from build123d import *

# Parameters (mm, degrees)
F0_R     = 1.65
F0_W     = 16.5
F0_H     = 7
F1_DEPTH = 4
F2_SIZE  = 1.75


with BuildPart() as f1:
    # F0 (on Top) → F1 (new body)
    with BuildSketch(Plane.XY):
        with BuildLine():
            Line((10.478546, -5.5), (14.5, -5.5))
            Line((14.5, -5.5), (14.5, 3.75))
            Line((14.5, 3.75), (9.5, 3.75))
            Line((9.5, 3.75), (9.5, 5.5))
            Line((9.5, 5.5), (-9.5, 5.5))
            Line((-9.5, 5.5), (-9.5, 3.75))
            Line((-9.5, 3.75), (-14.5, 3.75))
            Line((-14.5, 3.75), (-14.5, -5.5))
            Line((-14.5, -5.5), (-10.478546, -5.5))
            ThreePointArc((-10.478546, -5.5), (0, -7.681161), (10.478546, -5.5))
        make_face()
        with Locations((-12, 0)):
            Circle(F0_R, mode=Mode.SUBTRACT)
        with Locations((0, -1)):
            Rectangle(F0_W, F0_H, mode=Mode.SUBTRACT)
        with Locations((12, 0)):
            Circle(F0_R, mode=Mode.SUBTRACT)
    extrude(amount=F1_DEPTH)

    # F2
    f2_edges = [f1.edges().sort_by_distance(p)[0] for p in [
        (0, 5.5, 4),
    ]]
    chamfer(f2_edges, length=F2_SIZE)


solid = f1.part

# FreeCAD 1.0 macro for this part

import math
import FreeCAD as App
import Part
import Sketcher
from FreeCAD import Vector
Q = App.Units.Quantity


def edges_at(feature, points):
    """Names of the edges that pass closest to the given points."""
    edges = feature.Shape.Edges
    near = lambda p: min(range(len(edges)), key=lambda i: edges[i].distToShape(Part.Vertex(*p))[0])
    return sorted({f"Edge{near(p) + 1}" for p in points})

doc = App.newDocument("Part")
body = doc.addObject("PartDesign::Body", "Body")

# Sketch on XY plane
sketch1 = body.newObject("Sketcher::SketchObject", "Sketch")
sketch1.AttachmentSupport = (doc.getObject("XY_Plane"), [""])
sketch1.MapMode = "FlatFace"
sketch1.addGeometry([
    Part.LineSegment(Vector(10.5, -5.5, 0), Vector(14.5, -5.5, 0)),  # 0
    Part.LineSegment(Vector(14.5, -5.5, 0), Vector(14.5, 3.8, 0)),  # 1
    Part.LineSegment(Vector(14.5, 3.8, 0), Vector(9.5, 3.8, 0)),  # 2
    Part.LineSegment(Vector(9.5, 3.8, 0), Vector(9.5, 5.5, 0)),  # 3
    Part.LineSegment(Vector(9.5, 5.5, 0), Vector(-9.5, 5.5, 0)),  # 4
    Part.LineSegment(Vector(-9.5, 5.5, 0), Vector(-9.5, 3.8, 0)),  # 5
    Part.LineSegment(Vector(-9.5, 3.8, 0), Vector(-14.5, 3.8, 0)),  # 6
    Part.LineSegment(Vector(-14.5, 3.8, 0), Vector(-14.5, -5.5, 0)),  # 7
    Part.LineSegment(Vector(-14.5, -5.5, 0), Vector(-10.5, -5.5, 0)),  # 8
    Part.ArcOfCircle(Part.Circle(Vector(0, 18.6, 0), Vector(0, 0, 1), 26.3), math.radians(-114), math.radians(-66)),  # 9
    Part.Circle(Vector(-12, 0, 0), Vector(0, 0, 1), 1.6),  # 10
    Part.LineSegment(Vector(8.2, -4.5, 0), Vector(-8.2, -4.5, 0)),  # 11
    Part.LineSegment(Vector(-8.2, -4.5, 0), Vector(-8.2, 2.5, 0)),  # 12
    Part.LineSegment(Vector(-8.2, 2.5, 0), Vector(8.2, 2.5, 0)),  # 13
    Part.LineSegment(Vector(8.2, 2.5, 0), Vector(8.2, -4.5, 0)),  # 14
    Part.Circle(Vector(12, 0, 0), Vector(0, 0, 1), 1.6),  # 15
], False)
sketch1.addConstraint([
    Sketcher.Constraint("Coincident", 0, 2, 1, 1),
    Sketcher.Constraint("Coincident", 1, 2, 2, 1),
    Sketcher.Constraint("Coincident", 2, 2, 3, 1),
    Sketcher.Constraint("Coincident", 3, 2, 4, 1),
    Sketcher.Constraint("Coincident", 4, 2, 5, 1),
    Sketcher.Constraint("Coincident", 5, 2, 6, 1),
    Sketcher.Constraint("Coincident", 6, 2, 7, 1),
    Sketcher.Constraint("Coincident", 7, 2, 8, 1),
    Sketcher.Constraint("Coincident", 8, 2, 9, 1),
    Sketcher.Constraint("Coincident", 9, 2, 0, 1),
    Sketcher.Constraint("Coincident", 11, 2, 12, 1),
    Sketcher.Constraint("Coincident", 12, 2, 13, 1),
    Sketcher.Constraint("Coincident", 13, 2, 14, 1),
    Sketcher.Constraint("Coincident", 14, 2, 11, 1),
    Sketcher.Constraint("Horizontal", 0),
    Sketcher.Constraint("Vertical", 1),
    Sketcher.Constraint("Horizontal", 2),
    Sketcher.Constraint("Vertical", 3),
    Sketcher.Constraint("Horizontal", 4),
    Sketcher.Constraint("Vertical", 5),
    Sketcher.Constraint("Horizontal", 6),
    Sketcher.Constraint("Vertical", 7),
    Sketcher.Constraint("Horizontal", 8),
    Sketcher.Constraint("Horizontal", 11),
    Sketcher.Constraint("Vertical", 12),
    Sketcher.Constraint("Horizontal", 13),
    Sketcher.Constraint("Vertical", 14),
    Sketcher.Constraint("Equal", 10, 15),
    Sketcher.Constraint("Symmetric", 10, 3, 15, 3, -1, 1),
    Sketcher.Constraint("Symmetric", 2, 2, 5, 2, -2),
    Sketcher.Constraint("Symmetric", 0, 2, 7, 2, -2),
    Sketcher.Constraint("PointOnObject", 9, 3, -2),
    Sketcher.Constraint("PointOnObject", 10, 3, -1),
    Sketcher.Constraint("Diameter", 10, Q("3.3 mm")),
    Sketcher.Constraint("DistanceX", 2, 2, 2, 1, Q("5 mm")),
    Sketcher.Constraint("DistanceX", 4, 2, 4, 1, Q("19 mm")),
    Sketcher.Constraint("DistanceY", 12, 1, 12, 2, Q("7 mm")),
    Sketcher.Constraint("DistanceX", 11, 2, 11, 1, Q("16.5 mm")),
    Sketcher.Constraint("DistanceX", 10, 3, -1, 1, Q("12 mm")),
    Sketcher.Constraint("DistanceY", 0, 2, 3, 2, Q("11 mm")),
    Sketcher.Constraint("DistanceY", 8, 2, 11, 2, Q("1 mm")),
    Sketcher.Constraint("DistanceY", 1, 1, 1, 2, Q("9.25 mm")),
    Sketcher.Constraint("DistanceY", 0, 2, -1, 1, Q("5.5 mm")),
    Sketcher.Constraint("DistanceX", 11, 2, -1, 1, Q("8.25 mm")),
    Sketcher.Constraint("Radius", 9, Q("26.260645 mm")),
    Sketcher.Constraint("DistanceX", 0, 1, 0, 2, Q("4.021454 mm")),
])
pad1 = body.newObject("PartDesign::Pad", "Pad")
pad1.Profile = sketch1
pad1.Length = 4
doc.recompute()

chamfer = body.newObject("PartDesign::Chamfer", "Chamfer")
chamfer.Base = (pad1, edges_at(pad1, [(0, 5.5, 4)]))
chamfer.Size = 1.75

doc.recompute()
